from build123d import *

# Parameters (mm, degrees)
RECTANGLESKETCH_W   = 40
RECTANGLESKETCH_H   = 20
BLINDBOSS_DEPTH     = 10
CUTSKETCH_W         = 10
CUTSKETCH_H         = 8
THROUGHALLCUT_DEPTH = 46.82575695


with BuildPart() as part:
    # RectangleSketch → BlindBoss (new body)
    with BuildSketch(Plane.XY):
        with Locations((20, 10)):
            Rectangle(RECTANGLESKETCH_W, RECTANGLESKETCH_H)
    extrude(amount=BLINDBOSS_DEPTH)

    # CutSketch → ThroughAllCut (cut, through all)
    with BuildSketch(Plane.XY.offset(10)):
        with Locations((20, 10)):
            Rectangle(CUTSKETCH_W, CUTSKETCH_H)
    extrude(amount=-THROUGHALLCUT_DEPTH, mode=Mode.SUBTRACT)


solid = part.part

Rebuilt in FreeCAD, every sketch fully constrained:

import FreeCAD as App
import Part
import Sketcher
from FreeCAD import Vector
Q = App.Units.Quantity

doc = App.newDocument("Part")
body = doc.addObject("PartDesign::Body", "Body")

# Sketch on XY plane
sketch1 = doc.addObject("Sketcher::SketchObject", "Sketch")
body.addObject(sketch1)
sketch1.AttachmentSupport = (doc.XY_Plane, [""])
sketch1.MapMode = "FlatFace"
sketch1.addGeometry([
    Part.LineSegment(Vector(0, 20, 0), Vector(0, 0, 0)),
    Part.LineSegment(Vector(0, 0, 0), Vector(40, 0, 0)),
    Part.LineSegment(Vector(40, 0, 0), Vector(40, 20, 0)),
    Part.LineSegment(Vector(40, 20, 0), Vector(0, 20, 0)),
], False)
sketch1.addConstraint([
    Sketcher.Constraint("Coincident", 0, 2, 1, 1),
    Sketcher.Constraint("Coincident", 1, 2, 2, 1),
    Sketcher.Constraint("Coincident", 2, 2, 3, 1),
    Sketcher.Constraint("Coincident", 3, 2, 0, 1),
    Sketcher.Constraint("Vertical", 0),
    Sketcher.Constraint("Horizontal", 1),
    Sketcher.Constraint("Vertical", 2),
    Sketcher.Constraint("Horizontal", 3),
    Sketcher.Constraint("Coincident", 0, 2, -1, 1),
    Sketcher.Constraint("DistanceX", 1, 1, 1, 2, Q("40 mm")),
    Sketcher.Constraint("DistanceY", 0, 2, 0, 1, Q("20 mm")),
])
pad1 = doc.addObject("PartDesign::Pad", "Pad")
body.addObject(pad1)
pad1.Profile = sketch1
pad1.Length = 10

# Sketch on XY plane
sketch2 = doc.addObject("Sketcher::SketchObject", "Sketch001")
body.addObject(sketch2)
sketch2.AttachmentSupport = (doc.XY_Plane, [""])
sketch2.MapMode = "FlatFace"
sketch2.AttachmentOffset = App.Placement(Vector(0, 0, 10), App.Rotation())
sketch2.addGeometry([
    Part.LineSegment(Vector(15, 14, 0), Vector(15, 6, 0)),
    Part.LineSegment(Vector(15, 6, 0), Vector(25, 6, 0)),
    Part.LineSegment(Vector(25, 6, 0), Vector(25, 14, 0)),
    Part.LineSegment(Vector(25, 14, 0), Vector(15, 14, 0)),
], False)
sketch2.addConstraint([
    Sketcher.Constraint("Coincident", 0, 2, 1, 1),
    Sketcher.Constraint("Coincident", 1, 2, 2, 1),
    Sketcher.Constraint("Coincident", 2, 2, 3, 1),
    Sketcher.Constraint("Coincident", 3, 2, 0, 1),
    Sketcher.Constraint("Vertical", 0),
    Sketcher.Constraint("Horizontal", 1),
    Sketcher.Constraint("Vertical", 2),
    Sketcher.Constraint("Horizontal", 3),
    Sketcher.Constraint("DistanceX", 1, 1, 1, 2, Q("10 mm")),
    Sketcher.Constraint("DistanceY", 0, 2, 0, 1, Q("8 mm")),
    Sketcher.Constraint("DistanceX", -1, 1, 0, 2, Q("15 mm")),
    Sketcher.Constraint("DistanceY", -1, 1, 0, 2, Q("6 mm")),
])
pocket1 = doc.addObject("PartDesign::Pocket", "Pocket")
body.addObject(pocket1)
pocket1.Profile = sketch2
pocket1.Type = "ThroughAll"

doc.recompute()
